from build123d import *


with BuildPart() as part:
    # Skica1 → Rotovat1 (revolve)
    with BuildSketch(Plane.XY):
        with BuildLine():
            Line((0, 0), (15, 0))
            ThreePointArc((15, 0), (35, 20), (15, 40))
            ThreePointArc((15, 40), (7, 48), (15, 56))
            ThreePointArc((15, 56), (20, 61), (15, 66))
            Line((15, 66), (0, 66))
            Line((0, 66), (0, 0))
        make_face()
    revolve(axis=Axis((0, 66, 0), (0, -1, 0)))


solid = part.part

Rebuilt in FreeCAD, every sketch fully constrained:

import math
import FreeCAD as App
import Part
import Sketcher

V = App.Vector

doc = App.newDocument("Part")
params = doc.addObject("Spreadsheet::Sheet", "Params")
for row, (alias, value) in enumerate([
    ("sketch1_radius", "20 mm"),
    ("sketch1_radius2", "8 mm"),
    ("sketch1_radius3", "5 mm"),
    ("sketch1_width", "15 mm"),
    ("revolution_angle", "360 deg"),
], start=1):
    params.set(f"A{row}", alias)
    params.set(f"B{row}", "=" + value)
    params.setAlias(f"B{row}", alias)

body = doc.addObject("PartDesign::Body", "Body")

# Sketch on XY plane
sketch1 = body.newObject("Sketcher::SketchObject", "Sketch")
sketch1.AttachmentSupport = (doc.getObject("XY_Plane"), [""])
sketch1.MapMode = "FlatFace"
sketch1.addGeometry(Part.LineSegment(V(0, 0, 0), V(15, 0, 0)), False)
sketch1.addGeometry(Part.ArcOfCircle(Part.Circle(V(15, 20, 0), V(0, 0, 1), 20), math.radians(-90), math.radians(90)), False)
sketch1.addGeometry(Part.ArcOfCircle(Part.Circle(V(15, 48, 0), V(0, 0, 1), 8), math.radians(90), math.radians(270)), False)
sketch1.addGeometry(Part.ArcOfCircle(Part.Circle(V(15, 61, 0), V(0, 0, 1), 5), math.radians(-90), math.radians(90)), False)
sketch1.addGeometry(Part.LineSegment(V(15, 66, 0), V(0, 66, 0)), False)
sketch1.addGeometry(Part.LineSegment(V(0, 66, 0), V(0, 0, 0)), False)
sketch1.addConstraint(Sketcher.Constraint("Tangent", 0, 2, 1, 1))
sketch1.addConstraint(Sketcher.Constraint("Tangent", 1, 2, 2, 2))
sketch1.addConstraint(Sketcher.Constraint("Tangent", 2, 1, 3, 1))
sketch1.addConstraint(Sketcher.Constraint("Tangent", 3, 2, 4, 1))
sketch1.addConstraint(Sketcher.Constraint("Coincident", 4, 2, 5, 1))
sketch1.addConstraint(Sketcher.Constraint("Coincident", 5, 2, 0, 1))
sketch1.addConstraint(Sketcher.Constraint("Horizontal", 0))
sketch1.addConstraint(Sketcher.Constraint("Horizontal", 4))
sketch1.addConstraint(Sketcher.Constraint("Vertical", 5))
sketch1.addConstraint(Sketcher.Constraint("Coincident", 5, 2, -1, 1))
sketch1.addConstraint(Sketcher.Constraint("Vertical", 1, 3, 2, 3))
sketch1.addConstraint(Sketcher.Constraint("Vertical", 2, 3, 3, 3))
sketch1.addConstraint(Sketcher.Constraint("Radius", 1, 20.0))
sketch1.addConstraint(Sketcher.Constraint("Radius", 2, 8.0))
sketch1.addConstraint(Sketcher.Constraint("Radius", 3, 5.0))
sketch1.addConstraint(Sketcher.Constraint("DistanceX", 0, 1, 0, 2, 15.0))
sketch1.setExpression("Constraints[12]", "Params.sketch1_radius")
sketch1.setExpression("Constraints[13]", "Params.sketch1_radius2")
sketch1.setExpression("Constraints[14]", "Params.sketch1_radius3")
sketch1.setExpression("Constraints[15]", "Params.sketch1_width")
revolution = body.newObject("PartDesign::Revolution", "Revolution")
revolution.Profile = sketch1
revolution.ReferenceAxis = (sketch1, ["V_Axis"])
revolution.setExpression("Angle", "Params.revolution_angle")

doc.recompute()
